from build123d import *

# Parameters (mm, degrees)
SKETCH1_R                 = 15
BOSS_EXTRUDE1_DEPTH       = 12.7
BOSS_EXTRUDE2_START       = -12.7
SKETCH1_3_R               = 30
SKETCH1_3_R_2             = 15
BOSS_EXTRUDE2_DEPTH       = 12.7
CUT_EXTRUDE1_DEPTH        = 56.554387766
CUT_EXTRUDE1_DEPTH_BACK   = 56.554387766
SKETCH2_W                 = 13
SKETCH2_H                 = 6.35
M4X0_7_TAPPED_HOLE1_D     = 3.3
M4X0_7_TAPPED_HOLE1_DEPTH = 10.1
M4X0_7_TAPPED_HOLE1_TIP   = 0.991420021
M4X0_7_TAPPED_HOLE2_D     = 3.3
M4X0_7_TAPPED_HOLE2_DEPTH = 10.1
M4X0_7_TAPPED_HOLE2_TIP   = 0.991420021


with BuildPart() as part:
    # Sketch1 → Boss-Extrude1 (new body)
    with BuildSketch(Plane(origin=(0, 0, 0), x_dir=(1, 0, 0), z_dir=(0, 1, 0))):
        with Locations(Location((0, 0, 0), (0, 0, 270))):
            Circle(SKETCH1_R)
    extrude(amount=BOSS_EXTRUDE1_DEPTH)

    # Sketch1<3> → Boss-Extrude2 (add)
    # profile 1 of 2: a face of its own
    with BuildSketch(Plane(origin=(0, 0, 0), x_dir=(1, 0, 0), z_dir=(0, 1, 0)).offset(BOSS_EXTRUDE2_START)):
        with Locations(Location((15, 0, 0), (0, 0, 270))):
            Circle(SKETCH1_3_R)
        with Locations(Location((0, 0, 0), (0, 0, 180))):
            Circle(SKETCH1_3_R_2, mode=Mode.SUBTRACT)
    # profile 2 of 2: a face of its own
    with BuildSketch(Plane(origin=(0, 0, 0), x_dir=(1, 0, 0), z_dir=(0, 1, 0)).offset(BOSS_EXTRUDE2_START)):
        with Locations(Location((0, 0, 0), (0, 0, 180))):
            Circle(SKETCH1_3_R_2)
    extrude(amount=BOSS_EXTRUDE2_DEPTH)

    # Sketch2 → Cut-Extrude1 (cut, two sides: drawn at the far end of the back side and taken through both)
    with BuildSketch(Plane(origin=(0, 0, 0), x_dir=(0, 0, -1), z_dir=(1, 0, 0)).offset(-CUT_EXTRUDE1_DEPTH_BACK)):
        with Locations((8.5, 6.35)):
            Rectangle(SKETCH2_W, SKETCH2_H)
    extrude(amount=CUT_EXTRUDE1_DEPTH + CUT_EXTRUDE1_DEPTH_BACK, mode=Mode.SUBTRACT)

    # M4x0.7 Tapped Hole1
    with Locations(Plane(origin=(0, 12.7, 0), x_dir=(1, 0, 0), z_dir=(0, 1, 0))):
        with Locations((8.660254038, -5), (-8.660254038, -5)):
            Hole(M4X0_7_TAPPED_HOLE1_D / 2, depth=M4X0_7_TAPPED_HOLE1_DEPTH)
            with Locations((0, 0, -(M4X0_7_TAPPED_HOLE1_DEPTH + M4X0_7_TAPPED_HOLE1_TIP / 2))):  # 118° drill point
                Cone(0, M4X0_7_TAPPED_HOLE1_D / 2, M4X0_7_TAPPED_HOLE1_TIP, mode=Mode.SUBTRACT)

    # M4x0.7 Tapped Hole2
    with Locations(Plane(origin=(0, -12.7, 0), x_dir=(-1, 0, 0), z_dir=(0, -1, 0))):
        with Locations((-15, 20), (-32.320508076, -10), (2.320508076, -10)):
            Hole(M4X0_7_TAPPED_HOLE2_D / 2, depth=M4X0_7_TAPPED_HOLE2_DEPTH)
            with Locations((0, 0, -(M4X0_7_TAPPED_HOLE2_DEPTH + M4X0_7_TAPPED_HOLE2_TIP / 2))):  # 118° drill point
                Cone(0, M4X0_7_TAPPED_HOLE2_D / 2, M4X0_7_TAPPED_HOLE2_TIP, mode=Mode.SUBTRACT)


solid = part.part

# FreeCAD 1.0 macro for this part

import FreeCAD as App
import Part
import Sketcher
Q = App.Units.Quantity

doc = App.newDocument("Part")
params = doc.addObject("Spreadsheet::Sheet", "Params")
for row, (alias, value) in enumerate([
    ("sketch1_diameter", "30 mm"),
    ("pad1_length", "12.7 mm"),
    ("sketch2_diameter", "60 mm"),
    ("pad2_length", "12.7 mm"),
    ("sketch3_height", "13 mm"),
    ("sketch3_width", "6.35 mm"),
    ("sketch4_diameter", "3.3 mm"),
    ("hole_diameter", "3.3 mm"),
    ("hole_depth", "10.1 mm"),
    ("sketch5_diameter", "3.3 mm"),
    ("hole2_diameter", "3.3 mm"),
    ("hole2_depth", "10.1 mm"),
], start=1):
    params.set(f"A{row}", alias)
    params.set(f"B{row}", "=" + value)
    params.setAlias(f"B{row}", alias)

body = doc.addObject("PartDesign::Body", "Body")

sketch1 = body.newObject("Sketcher::SketchObject", "Sketch")
sketch1.AttachmentSupport = (doc.getObject("XZ_Plane"), [""])
sketch1.MapMode = "FlatFace"
sketch1.addGeometry(Part.Circle(App.Vector(0, 0, 0), App.Vector(0, 0, 1), 15), False)
sketch1.addConstraint([
    Sketcher.Constraint("Coincident", 0, 3, -1, 1),
    Sketcher.Constraint("Diameter", 0, Q("30 mm")),
])
sketch1.setExpression("Constraints[1]", "Params.sketch1_diameter")
pad1 = body.newObject("PartDesign::Pad", "Pad")
pad1.Profile = sketch1
pad1.setExpression("Length", "Params.pad1_length")
pad1.Reversed = True

sketch2 = body.newObject("Sketcher::SketchObject", "Sketch001")
sketch2.AttachmentSupport = (doc.getObject("XZ_Plane"), [""])
sketch2.MapMode = "FlatFace"
sketch2.AttachmentOffset = App.Placement(App.Vector(0, 0, 12.7), App.Rotation())
sketch2.addGeometry(Part.Circle(App.Vector(15, 0, 0), App.Vector(0, 0, 1), 30), False)
sketch2.addConstraint([
    Sketcher.Constraint("PointOnObject", 0, 3, -1),
    Sketcher.Constraint("Diameter", 0, Q("60 mm")),
    Sketcher.Constraint("DistanceX", -1, 1, 0, 3, Q("15 mm")),
])
sketch2.setExpression("Constraints[1]", "Params.sketch2_diameter")
pad2 = body.newObject("PartDesign::Pad", "Pad001")
pad2.Profile = sketch2
pad2.setExpression("Length", "Params.pad2_length")
pad2.Reversed = True

sketch3 = body.newObject("Sketcher::SketchObject", "Sketch002")
sketch3.AttachmentSupport = (doc.getObject("YZ_Plane"), [""])
sketch3.MapMode = "FlatFace"
sketch3.addGeometry([
    Part.LineSegment(App.Vector(9.525, -2, 0), App.Vector(3.175, -2, 0)),
    Part.LineSegment(App.Vector(3.175, -2, 0), App.Vector(3.175, -15, 0)),
    Part.LineSegment(App.Vector(3.175, -15, 0), App.Vector(9.525, -15, 0)),
    Part.LineSegment(App.Vector(9.525, -15, 0), App.Vector(9.525, -2, 0)),
], False)
sketch3.addConstraint([
    Sketcher.Constraint("Coincident", 0, 2, 1, 1),
    Sketcher.Constraint("Coincident", 1, 2, 2, 1),
    Sketcher.Constraint("Coincident", 2, 2, 3, 1),
    Sketcher.Constraint("Coincident", 3, 2, 0, 1),
    Sketcher.Constraint("Horizontal", 0),
    Sketcher.Constraint("Vertical", 1),
    Sketcher.Constraint("Horizontal", 2),
    Sketcher.Constraint("Vertical", 3),
    Sketcher.Constraint("DistanceY", 1, 2, 1, 1, Q("13 mm")),
    Sketcher.Constraint("DistanceY", 0, 2, -1, 1, Q("2 mm")),
    Sketcher.Constraint("DistanceX", 0, 2, 0, 1, Q("6.35 mm")),
    Sketcher.Constraint("DistanceX", -1, 1, 0, 2, Q("3.175 mm")),
])
sketch3.setExpression("Constraints[8]", "Params.sketch3_height")
sketch3.setExpression("Constraints[10]", "Params.sketch3_width")
pocket1 = body.newObject("PartDesign::Pocket", "Pocket")
pocket1.Profile = sketch3
pocket1.Type = "ThroughAll"
pocket1.Midplane = True

sketch4 = body.newObject("Sketcher::SketchObject", "Sketch003")
sketch4.AttachmentSupport = (doc.getObject("XZ_Plane"), [""])
sketch4.MapMode = "FlatFace"
sketch4.AttachmentOffset = App.Placement(App.Vector(0, 0, -12.7), App.Rotation())
sketch4.addGeometry([
    Part.Circle(App.Vector(8.660254, 5, 0), App.Vector(0, 0, 1), 1.65),
    Part.Circle(App.Vector(-8.660254, 5, 0), App.Vector(0, 0, 1), 1.65),
], False)
sketch4.addConstraint([
    Sketcher.Constraint("Equal", 0, 1),
    Sketcher.Constraint("Symmetric", 0, 3, 1, 3, -2),
    Sketcher.Constraint("Diameter", 0, Q("3.3 mm")),
    Sketcher.Constraint("DistanceY", -1, 1, 0, 3, Q("5 mm")),
    Sketcher.Constraint("DistanceX", 1, 3, 0, 3, Q("17.320508 mm")),
])
sketch4.setExpression("Constraints[2]", "Params.sketch4_diameter")
doc.recompute()
hole = body.newObject("PartDesign::Hole", "Hole")
hole.Profile = sketch4
hole.ThreadType = "None"
hole.setExpression("Diameter", "Params.hole_diameter")
hole.DepthType = "Dimension"
hole.setExpression("Depth", "Params.hole_depth")
hole.DrillPoint = "Angled"
hole.DrillPointAngle = 118
hole.Reversed = True

sketch5 = body.newObject("Sketcher::SketchObject", "Sketch004")
sketch5.AttachmentSupport = (doc.getObject("XZ_Plane"), [""])
sketch5.MapMode = "FlatFace"
sketch5.AttachmentOffset = App.Placement(App.Vector(0, 0, 12.7), App.Rotation())
sketch5.addGeometry([
    Part.Circle(App.Vector(15, -20, 0), App.Vector(0, 0, 1), 1.65),
    Part.Circle(App.Vector(32.320508, 10, 0), App.Vector(0, 0, 1), 1.65),
    Part.Circle(App.Vector(-2.320508, 10, 0), App.Vector(0, 0, 1), 1.65),
], False)
sketch5.addConstraint([
    Sketcher.Constraint("Equal", 0, 1),
    Sketcher.Constraint("Equal", 1, 2),
    Sketcher.Constraint("Horizontal", 1, 3, 2, 3),
    Sketcher.Constraint("Diameter", 0, Q("3.3 mm")),
    Sketcher.Constraint("DistanceX", -1, 1, 0, 3, Q("15 mm")),
    Sketcher.Constraint("DistanceY", 0, 3, -1, 1, Q("20 mm")),
    Sketcher.Constraint("DistanceY", -1, 1, 1, 3, Q("10 mm")),
    Sketcher.Constraint("DistanceX", -1, 1, 1, 3, Q("32.320508 mm")),
    Sketcher.Constraint("DistanceX", 2, 3, -1, 1, Q("2.320508 mm")),
])
sketch5.setExpression("Constraints[3]", "Params.sketch5_diameter")
doc.recompute()
hole2 = body.newObject("PartDesign::Hole", "Hole001")
hole2.Profile = sketch5
hole2.ThreadType = "None"
hole2.setExpression("Diameter", "Params.hole2_diameter")
hole2.DepthType = "Dimension"
hole2.setExpression("Depth", "Params.hole2_depth")
hole2.DrillPoint = "Angled"
hole2.DrillPointAngle = 118

doc.recompute()
